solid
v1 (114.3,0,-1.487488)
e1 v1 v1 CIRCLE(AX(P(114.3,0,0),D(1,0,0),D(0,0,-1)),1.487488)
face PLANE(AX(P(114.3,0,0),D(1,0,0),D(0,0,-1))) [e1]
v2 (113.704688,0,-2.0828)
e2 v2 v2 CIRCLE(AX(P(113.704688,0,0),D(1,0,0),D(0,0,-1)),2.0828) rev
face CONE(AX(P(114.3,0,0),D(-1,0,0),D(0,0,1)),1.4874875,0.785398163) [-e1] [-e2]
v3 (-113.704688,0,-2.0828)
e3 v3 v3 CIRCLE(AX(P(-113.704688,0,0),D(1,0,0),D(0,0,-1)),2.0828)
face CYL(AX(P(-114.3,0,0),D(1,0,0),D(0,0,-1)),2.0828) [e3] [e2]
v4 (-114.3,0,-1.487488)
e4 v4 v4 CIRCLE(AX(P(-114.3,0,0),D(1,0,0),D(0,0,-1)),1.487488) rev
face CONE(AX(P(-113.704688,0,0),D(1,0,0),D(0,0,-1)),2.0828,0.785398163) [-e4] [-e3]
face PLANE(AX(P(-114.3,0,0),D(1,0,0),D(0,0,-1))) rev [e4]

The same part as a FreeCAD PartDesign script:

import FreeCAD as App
import Part
import Sketcher

V = App.Vector
Q = App.Units.Quantity


def edges_at(feature, points):
    """Names of the edges that pass closest to the given points."""
    edges = feature.Shape.Edges
    near = lambda p: min(range(len(edges)), key=lambda i: edges[i].distToShape(Part.Vertex(*p))[0])
    return sorted({f"Edge{near(p) + 1}" for p in points})

doc = App.newDocument("Part")
params = doc.addObject("Spreadsheet::Sheet", "Params")
for row, (alias, value) in enumerate([
    ("sketch1_diameter", "0.164 in"),
    ("pad1_length", "4.5 in"),
    ("pad1_length2", "4.5 in"),
    ("chamfer_size", "0.595313 mm"),
], start=1):
    params.set(f"A{row}", alias)
    params.set(f"B{row}", "=" + value)
    params.setAlias(f"B{row}", alias)

body = doc.addObject("PartDesign::Body", "Body")

sketch1 = body.newObject("Sketcher::SketchObject", "Sketch")
sketch1.AttachmentSupport = (doc.getObject("YZ_Plane"), [""])
sketch1.MapMode = "FlatFace"
sketch1.addGeometry(Part.Circle(V(0, 0, 0), V(0, 0, 1), 2.0828), False)
sketch1.addConstraint(Sketcher.Constraint("Coincident", 0, 3, -1, 1))
sketch1.addConstraint(Sketcher.Constraint("Diameter", 0, Q("0.164 in")))
sketch1.setExpression("Constraints[1]", "Params.sketch1_diameter")
pad1 = body.newObject("PartDesign::Pad", "Pad")
pad1.Profile = sketch1
pad1.Type = "TwoLengths"
pad1.setExpression("Length", "Params.pad1_length")
pad1.setExpression("Length2", "Params.pad1_length2")
doc.recompute()

chamfer = body.newObject("PartDesign::Chamfer", "Chamfer")
chamfer.Base = (pad1, edges_at(pad1, [(-114.3, 0, 2.083), (114.3, 0, 2.083)]))
chamfer.setExpression("Size", "Params.chamfer_size")

doc.recompute()
